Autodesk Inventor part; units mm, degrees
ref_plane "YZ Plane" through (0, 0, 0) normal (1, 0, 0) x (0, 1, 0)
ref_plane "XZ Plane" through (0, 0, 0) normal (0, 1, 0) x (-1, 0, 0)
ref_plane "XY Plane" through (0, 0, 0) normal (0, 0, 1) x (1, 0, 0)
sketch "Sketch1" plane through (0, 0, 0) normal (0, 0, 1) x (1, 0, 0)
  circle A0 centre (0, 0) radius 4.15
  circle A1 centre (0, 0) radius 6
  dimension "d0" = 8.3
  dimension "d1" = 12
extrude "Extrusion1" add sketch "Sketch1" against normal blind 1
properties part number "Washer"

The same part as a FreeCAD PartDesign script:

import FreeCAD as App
import Part
import Sketcher
Q = App.Units.Quantity

doc = App.newDocument("Part")
body = doc.addObject("PartDesign::Body", "Body")

sketch1 = doc.addObject("Sketcher::SketchObject", "Sketch")
body.addObject(sketch1)
sketch1.AttachmentSupport = (doc.XY_Plane, [""])
sketch1.MapMode = "FlatFace"
sketch1.addGeometry([
    Part.Circle(App.Vector(0, 0, 0), App.Vector(0, 0, 1), 6),
    Part.Circle(App.Vector(0, 0, 0), App.Vector(0, 0, 1), 4.2),
], False)
sketch1.addConstraint([
    Sketcher.Constraint("Coincident", 0, 3, -1, 1),
    Sketcher.Constraint("Coincident", 1, 3, -1, 1),
    Sketcher.Constraint("Diameter", 0, Q("12 mm")),
    Sketcher.Constraint("Diameter", 1, Q("8.3 mm")),
])
pad1 = doc.addObject("PartDesign::Pad", "Pad")
body.addObject(pad1)
pad1.Profile = sketch1
pad1.Length = 1
pad1.Reversed = True

doc.recompute()
